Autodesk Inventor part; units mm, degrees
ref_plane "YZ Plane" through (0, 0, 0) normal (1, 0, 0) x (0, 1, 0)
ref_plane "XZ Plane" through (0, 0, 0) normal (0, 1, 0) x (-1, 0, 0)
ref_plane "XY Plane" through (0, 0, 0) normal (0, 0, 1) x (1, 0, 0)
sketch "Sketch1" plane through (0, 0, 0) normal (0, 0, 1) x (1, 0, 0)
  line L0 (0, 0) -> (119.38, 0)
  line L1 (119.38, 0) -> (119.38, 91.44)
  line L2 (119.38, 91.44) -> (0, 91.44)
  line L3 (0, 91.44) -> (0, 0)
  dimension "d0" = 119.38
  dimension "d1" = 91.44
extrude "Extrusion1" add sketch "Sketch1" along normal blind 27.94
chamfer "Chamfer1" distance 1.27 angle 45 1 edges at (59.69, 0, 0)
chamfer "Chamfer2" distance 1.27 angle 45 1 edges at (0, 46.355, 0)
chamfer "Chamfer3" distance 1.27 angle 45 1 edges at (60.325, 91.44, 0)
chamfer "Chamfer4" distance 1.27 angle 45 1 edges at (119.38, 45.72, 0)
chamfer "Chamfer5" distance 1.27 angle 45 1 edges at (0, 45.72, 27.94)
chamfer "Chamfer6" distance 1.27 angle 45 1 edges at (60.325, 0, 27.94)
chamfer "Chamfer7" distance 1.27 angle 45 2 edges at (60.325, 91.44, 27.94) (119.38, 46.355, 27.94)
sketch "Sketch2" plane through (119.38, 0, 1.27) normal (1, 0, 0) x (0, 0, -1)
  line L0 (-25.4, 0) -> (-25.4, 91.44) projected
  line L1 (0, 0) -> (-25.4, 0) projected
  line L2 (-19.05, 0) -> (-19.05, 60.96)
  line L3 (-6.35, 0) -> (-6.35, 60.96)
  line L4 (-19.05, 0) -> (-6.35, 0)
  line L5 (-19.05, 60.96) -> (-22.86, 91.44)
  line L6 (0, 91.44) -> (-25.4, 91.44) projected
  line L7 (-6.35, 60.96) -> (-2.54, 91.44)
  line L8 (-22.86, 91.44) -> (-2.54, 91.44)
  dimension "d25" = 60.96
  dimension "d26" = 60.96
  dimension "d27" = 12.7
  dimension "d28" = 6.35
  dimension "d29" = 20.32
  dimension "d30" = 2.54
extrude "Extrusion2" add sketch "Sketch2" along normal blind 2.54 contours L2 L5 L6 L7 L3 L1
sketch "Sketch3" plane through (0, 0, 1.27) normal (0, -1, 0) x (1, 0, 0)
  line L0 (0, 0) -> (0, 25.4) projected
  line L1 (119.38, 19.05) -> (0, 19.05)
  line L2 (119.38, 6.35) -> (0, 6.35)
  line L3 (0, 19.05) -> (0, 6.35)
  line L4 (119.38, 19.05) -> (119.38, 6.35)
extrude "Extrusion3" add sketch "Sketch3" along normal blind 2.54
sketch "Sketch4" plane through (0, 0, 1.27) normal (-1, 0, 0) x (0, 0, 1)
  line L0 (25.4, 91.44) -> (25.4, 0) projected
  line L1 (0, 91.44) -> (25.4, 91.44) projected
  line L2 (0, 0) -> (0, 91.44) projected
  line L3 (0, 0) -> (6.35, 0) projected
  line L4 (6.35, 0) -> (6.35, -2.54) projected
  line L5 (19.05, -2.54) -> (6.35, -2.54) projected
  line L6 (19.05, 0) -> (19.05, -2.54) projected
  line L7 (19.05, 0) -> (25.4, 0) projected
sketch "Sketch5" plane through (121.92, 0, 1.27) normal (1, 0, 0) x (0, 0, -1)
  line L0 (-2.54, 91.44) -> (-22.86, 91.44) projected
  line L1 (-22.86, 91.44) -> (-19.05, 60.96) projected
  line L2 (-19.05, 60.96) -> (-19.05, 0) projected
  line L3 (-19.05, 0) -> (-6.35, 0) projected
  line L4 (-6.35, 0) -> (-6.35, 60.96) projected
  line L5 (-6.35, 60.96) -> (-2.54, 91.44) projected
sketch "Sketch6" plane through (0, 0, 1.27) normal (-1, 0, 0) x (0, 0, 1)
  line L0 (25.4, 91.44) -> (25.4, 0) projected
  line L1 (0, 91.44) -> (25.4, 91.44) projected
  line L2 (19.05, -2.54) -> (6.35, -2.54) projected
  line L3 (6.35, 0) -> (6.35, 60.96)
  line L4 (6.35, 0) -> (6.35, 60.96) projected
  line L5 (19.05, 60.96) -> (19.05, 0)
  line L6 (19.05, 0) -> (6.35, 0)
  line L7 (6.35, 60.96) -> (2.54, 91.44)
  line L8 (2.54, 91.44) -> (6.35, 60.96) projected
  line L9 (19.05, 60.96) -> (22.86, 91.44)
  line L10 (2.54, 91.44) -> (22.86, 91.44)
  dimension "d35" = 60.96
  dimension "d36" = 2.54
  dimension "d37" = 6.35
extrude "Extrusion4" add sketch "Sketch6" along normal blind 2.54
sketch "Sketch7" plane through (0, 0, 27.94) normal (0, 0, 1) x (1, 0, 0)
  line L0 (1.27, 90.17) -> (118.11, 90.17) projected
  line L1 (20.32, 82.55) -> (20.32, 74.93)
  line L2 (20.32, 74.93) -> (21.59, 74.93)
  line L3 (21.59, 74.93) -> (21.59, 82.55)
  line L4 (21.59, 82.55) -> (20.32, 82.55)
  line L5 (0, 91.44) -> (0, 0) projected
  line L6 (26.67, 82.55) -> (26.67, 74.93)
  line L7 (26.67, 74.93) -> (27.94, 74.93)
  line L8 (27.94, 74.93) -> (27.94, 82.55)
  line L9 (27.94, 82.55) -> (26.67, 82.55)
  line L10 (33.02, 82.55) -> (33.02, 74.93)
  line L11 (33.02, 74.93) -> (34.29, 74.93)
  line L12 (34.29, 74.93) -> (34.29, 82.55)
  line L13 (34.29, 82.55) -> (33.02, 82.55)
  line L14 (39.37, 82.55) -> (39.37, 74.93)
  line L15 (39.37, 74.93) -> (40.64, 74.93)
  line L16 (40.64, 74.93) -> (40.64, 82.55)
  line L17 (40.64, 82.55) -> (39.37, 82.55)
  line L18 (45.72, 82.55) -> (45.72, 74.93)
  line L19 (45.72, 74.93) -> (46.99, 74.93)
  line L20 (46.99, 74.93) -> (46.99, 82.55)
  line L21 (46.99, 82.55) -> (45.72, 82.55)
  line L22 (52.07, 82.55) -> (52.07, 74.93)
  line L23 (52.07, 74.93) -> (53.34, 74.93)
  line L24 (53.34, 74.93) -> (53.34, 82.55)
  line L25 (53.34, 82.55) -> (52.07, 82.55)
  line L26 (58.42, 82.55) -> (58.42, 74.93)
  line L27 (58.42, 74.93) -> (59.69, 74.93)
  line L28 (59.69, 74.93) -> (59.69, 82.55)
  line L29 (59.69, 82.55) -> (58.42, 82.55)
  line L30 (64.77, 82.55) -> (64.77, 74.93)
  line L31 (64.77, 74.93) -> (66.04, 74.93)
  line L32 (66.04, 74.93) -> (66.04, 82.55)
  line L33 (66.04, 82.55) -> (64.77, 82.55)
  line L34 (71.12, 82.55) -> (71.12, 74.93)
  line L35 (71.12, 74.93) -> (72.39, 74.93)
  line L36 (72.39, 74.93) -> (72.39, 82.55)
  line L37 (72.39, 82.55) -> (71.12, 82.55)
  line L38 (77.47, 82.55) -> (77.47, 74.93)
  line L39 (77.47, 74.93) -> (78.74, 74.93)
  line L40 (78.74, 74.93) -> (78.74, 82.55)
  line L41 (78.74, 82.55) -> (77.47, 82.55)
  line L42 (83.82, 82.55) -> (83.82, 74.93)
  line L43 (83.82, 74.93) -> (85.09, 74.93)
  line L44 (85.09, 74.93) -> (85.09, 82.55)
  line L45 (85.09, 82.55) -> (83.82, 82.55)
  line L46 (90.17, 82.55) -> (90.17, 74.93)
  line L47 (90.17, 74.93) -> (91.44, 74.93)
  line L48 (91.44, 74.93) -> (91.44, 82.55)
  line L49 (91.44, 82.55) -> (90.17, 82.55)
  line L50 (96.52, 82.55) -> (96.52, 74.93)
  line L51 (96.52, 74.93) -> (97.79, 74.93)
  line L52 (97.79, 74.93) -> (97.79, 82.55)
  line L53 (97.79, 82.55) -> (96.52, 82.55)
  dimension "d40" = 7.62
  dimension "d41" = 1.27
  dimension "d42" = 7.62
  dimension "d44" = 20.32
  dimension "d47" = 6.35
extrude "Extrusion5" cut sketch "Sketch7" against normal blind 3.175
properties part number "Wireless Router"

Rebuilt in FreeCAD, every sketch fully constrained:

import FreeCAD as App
import Part
import Sketcher
from FreeCAD import Vector
Q = App.Units.Quantity


def edges_at(feature, points):
    """Names of the edges that pass closest to the given points."""
    edges = feature.Shape.Edges
    near = lambda p: min(range(len(edges)), key=lambda i: edges[i].distToShape(Part.Vertex(*p))[0])
    return sorted({f"Edge{near(p) + 1}" for p in points})


def add_polygon(sketch, points):
    """Adds a closed chain of lines whose ends are joined by coincident constraints."""
    first, n = sketch.GeometryCount, len(points)
    for a, b in zip(points, points[1:] + points[:1]):
        sketch.addGeometry(Part.LineSegment(App.Vector(*a, 0), App.Vector(*b, 0)), False)
    for i in range(n):
        sketch.addConstraint(Sketcher.Constraint("Coincident", first + i, 2, first + (i + 1) % n, 1))

doc = App.newDocument("Part")
body = doc.addObject("PartDesign::Body", "Body")

# Sketch on XY plane
sketch1 = body.newObject("Sketcher::SketchObject", "Sketch")
sketch1.AttachmentSupport = (doc.getObject("XY_Plane"), [""])
sketch1.MapMode = "FlatFace"
add_polygon(sketch1, [(0, 91.44), (0, 0), (119.38, 0), (119.38, 91.44)])  # lines 0-3
sketch1.addConstraint(Sketcher.Constraint("Vertical", 0))
sketch1.addConstraint(Sketcher.Constraint("Horizontal", 1))
sketch1.addConstraint(Sketcher.Constraint("Vertical", 2))
sketch1.addConstraint(Sketcher.Constraint("Horizontal", 3))
sketch1.addConstraint(Sketcher.Constraint("Coincident", 0, 2, -1, 1))
sketch1.addConstraint(Sketcher.Constraint("DistanceX", 1, 1, 1, 2, Q("4.7 in")))
sketch1.addConstraint(Sketcher.Constraint("DistanceY", 0, 2, 0, 1, Q("3.6 in")))
pad1 = body.newObject("PartDesign::Pad", "Pad")
pad1.Profile = sketch1
pad1.Length = Q("1.1 in")
doc.recompute()

chamfer = body.newObject("PartDesign::Chamfer", "Chamfer")
chamfer.Base = (pad1, edges_at(pad1, [(59.69, 0, 0)]))
chamfer.Size = Q("0.05 in")
doc.recompute()

chamfer2 = body.newObject("PartDesign::Chamfer", "Chamfer001")
chamfer2.Base = (chamfer, edges_at(chamfer, [(0, 46.355, 0)]))
chamfer2.Size = Q("0.05 in")
doc.recompute()

chamfer3 = body.newObject("PartDesign::Chamfer", "Chamfer002")
chamfer3.Base = (chamfer2, edges_at(chamfer2, [(60.325, 91.44, 0)]))
chamfer3.Size = Q("0.05 in")
doc.recompute()

chamfer4 = body.newObject("PartDesign::Chamfer", "Chamfer003")
chamfer4.Base = (chamfer3, edges_at(chamfer3, [(119.38, 45.72, 0)]))
chamfer4.Size = Q("0.05 in")
doc.recompute()

chamfer5 = body.newObject("PartDesign::Chamfer", "Chamfer004")
chamfer5.Base = (chamfer4, edges_at(chamfer4, [(0, 45.72, 27.94)]))
chamfer5.Size = Q("0.05 in")
doc.recompute()

chamfer6 = body.newObject("PartDesign::Chamfer", "Chamfer005")
chamfer6.Base = (chamfer5, edges_at(chamfer5, [(60.325, 0, 27.94)]))
chamfer6.Size = Q("0.05 in")
doc.recompute()

chamfer7 = body.newObject("PartDesign::Chamfer", "Chamfer006")
chamfer7.Base = (chamfer6, edges_at(chamfer6, [(60.325, 91.44, 27.94), (119.38, 46.355, 27.94)]))
chamfer7.Size = Q("0.05 in")

# Sketch on YZ plane
sketch2 = body.newObject("Sketcher::SketchObject", "Sketch001")
sketch2.AttachmentSupport = (doc.getObject("YZ_Plane"), [""])
sketch2.MapMode = "FlatFace"
sketch2.AttachmentOffset = App.Placement(Vector(0, 0, 4.7 * 25.4), App.Rotation())
add_polygon(sketch2, [(60.96, 20.32), (0, 20.32), (0, 7.62), (60.96, 7.62), (91.44, 3.81), (91.44, 24.13)])  # lines 0-5
sketch2.addConstraint(Sketcher.Constraint("Horizontal", 0))
sketch2.addConstraint(Sketcher.Constraint("Vertical", 1))
sketch2.addConstraint(Sketcher.Constraint("Horizontal", 2))
sketch2.addConstraint(Sketcher.Constraint("Vertical", 4))
sketch2.addConstraint(Sketcher.Constraint("PointOnObject", 0, 2, -2))
sketch2.addConstraint(Sketcher.Constraint("Vertical", 2, 2, 5, 2))
sketch2.addConstraint(Sketcher.Constraint("Equal", 3, 5))
sketch2.addConstraint(Sketcher.Constraint("DistanceX", 0, 2, 0, 1, Q("2.4 in")))
sketch2.addConstraint(Sketcher.Constraint("DistanceY", 1, 2, 1, 1, Q("0.5 in")))
sketch2.addConstraint(Sketcher.Constraint("DistanceY", 4, 1, 4, 2, Q("0.8 in")))
sketch2.addConstraint(Sketcher.Constraint("DistanceY", -1, 1, 0, 2, Q("0.8 in")))
sketch2.addConstraint(Sketcher.Constraint("DistanceX", -1, 1, 3, 2, Q("3.6 in")))
pad2 = body.newObject("PartDesign::Pad", "Pad001")
pad2.Profile = sketch2
pad2.Length = Q("0.1 in")

# Sketch on XZ plane
sketch3 = body.newObject("Sketcher::SketchObject", "Sketch002")
sketch3.AttachmentSupport = (doc.getObject("XZ_Plane"), [""])
sketch3.MapMode = "FlatFace"
add_polygon(sketch3, [(0, 20.32), (0, 7.62), (119.38, 7.62), (119.38, 20.32)])  # lines 0-3
sketch3.addConstraint(Sketcher.Constraint("Vertical", 0))
sketch3.addConstraint(Sketcher.Constraint("Horizontal", 1))
sketch3.addConstraint(Sketcher.Constraint("Vertical", 2))
sketch3.addConstraint(Sketcher.Constraint("Horizontal", 3))
sketch3.addConstraint(Sketcher.Constraint("PointOnObject", 0, 2, -2))
sketch3.addConstraint(Sketcher.Constraint("DistanceX", 1, 1, 1, 2, Q("4.7 in")))
sketch3.addConstraint(Sketcher.Constraint("DistanceY", 0, 2, 0, 1, Q("0.5 in")))
sketch3.addConstraint(Sketcher.Constraint("DistanceY", -1, 1, 0, 2, Q("0.3 in")))
pad3 = body.newObject("PartDesign::Pad", "Pad002")
pad3.Profile = sketch3
pad3.Length = Q("0.1 in")

# Sketch on YZ plane
sketch4 = body.newObject("Sketcher::SketchObject", "Sketch003")
sketch4.AttachmentSupport = (doc.getObject("YZ_Plane"), [""])
sketch4.MapMode = "FlatFace"
add_polygon(sketch4, [(91.44, 24.13), (91.44, 3.81), (60.96, 7.62), (0, 7.62), (0, 20.32), (60.96, 20.32)])  # lines 0-5
sketch4.addConstraint(Sketcher.Constraint("Vertical", 0))
sketch4.addConstraint(Sketcher.Constraint("Horizontal", 2))
sketch4.addConstraint(Sketcher.Constraint("Vertical", 3))
sketch4.addConstraint(Sketcher.Constraint("Horizontal", 4))
sketch4.addConstraint(Sketcher.Constraint("PointOnObject", 2, 2, -2))
sketch4.addConstraint(Sketcher.Constraint("Vertical", 1, 2, 4, 2))
sketch4.addConstraint(Sketcher.Constraint("Equal", 1, 5))
sketch4.addConstraint(Sketcher.Constraint("DistanceX", 2, 2, 2, 1, Q("2.4 in")))
sketch4.addConstraint(Sketcher.Constraint("DistanceY", 0, 2, 0, 1, Q("0.8 in")))
sketch4.addConstraint(Sketcher.Constraint("DistanceY", 3, 1, 3, 2, Q("0.5 in")))
sketch4.addConstraint(Sketcher.Constraint("DistanceX", -1, 1, 0, 2, Q("3.6 in")))
sketch4.addConstraint(Sketcher.Constraint("DistanceY", -1, 1, 1, 2, Q("0.3 in")))
pad4 = body.newObject("PartDesign::Pad", "Pad003")
pad4.Profile = sketch4
pad4.Length = Q("0.1 in")
pad4.Reversed = True

# Sketch on XY plane
sketch5 = body.newObject("Sketcher::SketchObject", "Sketch004")
sketch5.AttachmentSupport = (doc.getObject("XY_Plane"), [""])
sketch5.MapMode = "FlatFace"
sketch5.AttachmentOffset = App.Placement(Vector(0, 0, 1.1 * 25.4), App.Rotation())
add_polygon(sketch5, [(21.59, 82.55), (20.32, 82.55), (20.32, 74.93), (21.59, 74.93)])  # lines 0-3
add_polygon(sketch5, [(27.94, 82.55), (26.67, 82.55), (26.67, 74.93), (27.94, 74.93)])  # lines 4-7
add_polygon(sketch5, [(34.29, 82.55), (33.02, 82.55), (33.02, 74.93), (34.29, 74.93)])  # lines 8-11
add_polygon(sketch5, [(40.64, 82.55), (39.37, 82.55), (39.37, 74.93), (40.64, 74.93)])  # lines 12-15
add_polygon(sketch5, [(46.99, 82.55), (45.72, 82.55), (45.72, 74.93), (46.99, 74.93)])  # lines 16-19
add_polygon(sketch5, [(53.34, 82.55), (52.07, 82.55), (52.07, 74.93), (53.34, 74.93)])  # lines 20-23
add_polygon(sketch5, [(59.69, 82.55), (58.42, 82.55), (58.42, 74.93), (59.69, 74.93)])  # lines 24-27
add_polygon(sketch5, [(66.04, 82.55), (64.77, 82.55), (64.77, 74.93), (66.04, 74.93)])  # lines 28-31
add_polygon(sketch5, [(72.39, 82.55), (71.12, 82.55), (71.12, 74.93), (72.39, 74.93)])  # lines 32-35
add_polygon(sketch5, [(78.74, 82.55), (77.47, 82.55), (77.47, 74.93), (78.74, 74.93)])  # lines 36-39
add_polygon(sketch5, [(85.09, 82.55), (83.82, 82.55), (83.82, 74.93), (85.09, 74.93)])  # lines 40-43
add_polygon(sketch5, [(91.44, 82.55), (90.17, 82.55), (90.17, 74.93), (91.44, 74.93)])  # lines 44-47
add_polygon(sketch5, [(97.79, 82.55), (96.52, 82.55), (96.52, 74.93), (97.79, 74.93)])  # lines 48-51
sketch5.addConstraint(Sketcher.Constraint("Horizontal", 0))
sketch5.addConstraint(Sketcher.Constraint("Vertical", 1))
sketch5.addConstraint(Sketcher.Constraint("Horizontal", 2))
sketch5.addConstraint(Sketcher.Constraint("Vertical", 3))
sketch5.addConstraint(Sketcher.Constraint("Horizontal", 4))
sketch5.addConstraint(Sketcher.Constraint("Vertical", 5))
sketch5.addConstraint(Sketcher.Constraint("Horizontal", 6))
sketch5.addConstraint(Sketcher.Constraint("Vertical", 7))
sketch5.addConstraint(Sketcher.Constraint("Horizontal", 8))
sketch5.addConstraint(Sketcher.Constraint("Vertical", 9))
sketch5.addConstraint(Sketcher.Constraint("Horizontal", 10))
sketch5.addConstraint(Sketcher.Constraint("Vertical", 11))
sketch5.addConstraint(Sketcher.Constraint("Horizontal", 12))
sketch5.addConstraint(Sketcher.Constraint("Vertical", 13))
sketch5.addConstraint(Sketcher.Constraint("Horizontal", 14))
sketch5.addConstraint(Sketcher.Constraint("Vertical", 15))
sketch5.addConstraint(Sketcher.Constraint("Horizontal", 16))
sketch5.addConstraint(Sketcher.Constraint("Vertical", 17))
sketch5.addConstraint(Sketcher.Constraint("Horizontal", 18))
sketch5.addConstraint(Sketcher.Constraint("Vertical", 19))
sketch5.addConstraint(Sketcher.Constraint("Horizontal", 20))
sketch5.addConstraint(Sketcher.Constraint("Vertical", 21))
sketch5.addConstraint(Sketcher.Constraint("Horizontal", 22))
sketch5.addConstraint(Sketcher.Constraint("Vertical", 23))
sketch5.addConstraint(Sketcher.Constraint("Horizontal", 24))
sketch5.addConstraint(Sketcher.Constraint("Vertical", 25))
sketch5.addConstraint(Sketcher.Constraint("Horizontal", 26))
sketch5.addConstraint(Sketcher.Constraint("Vertical", 27))
sketch5.addConstraint(Sketcher.Constraint("Horizontal", 28))
sketch5.addConstraint(Sketcher.Constraint("Vertical", 29))
sketch5.addConstraint(Sketcher.Constraint("Horizontal", 30))
sketch5.addConstraint(Sketcher.Constraint("Vertical", 31))
sketch5.addConstraint(Sketcher.Constraint("Horizontal", 32))
sketch5.addConstraint(Sketcher.Constraint("Vertical", 33))
sketch5.addConstraint(Sketcher.Constraint("Horizontal", 34))
sketch5.addConstraint(Sketcher.Constraint("Vertical", 35))
sketch5.addConstraint(Sketcher.Constraint("Horizontal", 36))
sketch5.addConstraint(Sketcher.Constraint("Vertical", 37))
sketch5.addConstraint(Sketcher.Constraint("Horizontal", 38))
sketch5.addConstraint(Sketcher.Constraint("Vertical", 39))
sketch5.addConstraint(Sketcher.Constraint("Horizontal", 40))
sketch5.addConstraint(Sketcher.Constraint("Vertical", 41))
sketch5.addConstraint(Sketcher.Constraint("Horizontal", 42))
sketch5.addConstraint(Sketcher.Constraint("Vertical", 43))
sketch5.addConstraint(Sketcher.Constraint("Horizontal", 44))
sketch5.addConstraint(Sketcher.Constraint("Vertical", 45))
sketch5.addConstraint(Sketcher.Constraint("Horizontal", 46))
sketch5.addConstraint(Sketcher.Constraint("Vertical", 47))
sketch5.addConstraint(Sketcher.Constraint("Horizontal", 48))
sketch5.addConstraint(Sketcher.Constraint("Vertical", 49))
sketch5.addConstraint(Sketcher.Constraint("Horizontal", 50))
sketch5.addConstraint(Sketcher.Constraint("Vertical", 51))
sketch5.addConstraint(Sketcher.Constraint("Horizontal", 3, 2, 4, 2))
sketch5.addConstraint(Sketcher.Constraint("Horizontal", 2, 2, 5, 2))
sketch5.addConstraint(Sketcher.Constraint("Horizontal", 7, 2, 8, 2))
sketch5.addConstraint(Sketcher.Constraint("Horizontal", 6, 2, 9, 2))
sketch5.addConstraint(Sketcher.Constraint("Horizontal", 11, 2, 12, 2))
sketch5.addConstraint(Sketcher.Constraint("Horizontal", 10, 2, 13, 2))
sketch5.addConstraint(Sketcher.Constraint("Horizontal", 15, 2, 16, 2))
sketch5.addConstraint(Sketcher.Constraint("Horizontal", 14, 2, 17, 2))
sketch5.addConstraint(Sketcher.Constraint("Horizontal", 19, 2, 20, 2))
sketch5.addConstraint(Sketcher.Constraint("Horizontal", 18, 2, 21, 2))
sketch5.addConstraint(Sketcher.Constraint("Horizontal", 23, 2, 24, 2))
sketch5.addConstraint(Sketcher.Constraint("Horizontal", 22, 2, 25, 2))
sketch5.addConstraint(Sketcher.Constraint("Horizontal", 27, 2, 28, 2))
sketch5.addConstraint(Sketcher.Constraint("Horizontal", 26, 2, 29, 2))
sketch5.addConstraint(Sketcher.Constraint("Horizontal", 31, 2, 32, 2))
sketch5.addConstraint(Sketcher.Constraint("Horizontal", 30, 2, 33, 2))
sketch5.addConstraint(Sketcher.Constraint("Horizontal", 35, 2, 36, 2))
sketch5.addConstraint(Sketcher.Constraint("Horizontal", 34, 2, 37, 2))
sketch5.addConstraint(Sketcher.Constraint("Horizontal", 39, 2, 40, 2))
sketch5.addConstraint(Sketcher.Constraint("Horizontal", 38, 2, 41, 2))
sketch5.addConstraint(Sketcher.Constraint("Horizontal", 43, 2, 44, 2))
sketch5.addConstraint(Sketcher.Constraint("Horizontal", 42, 2, 45, 2))
sketch5.addConstraint(Sketcher.Constraint("Horizontal", 47, 2, 48, 2))
sketch5.addConstraint(Sketcher.Constraint("Horizontal", 46, 2, 49, 2))
sketch5.addConstraint(Sketcher.Constraint("Equal", 2, 4))
sketch5.addConstraint(Sketcher.Constraint("Equal", 6, 8))
sketch5.addConstraint(Sketcher.Constraint("Equal", 10, 12))
sketch5.addConstraint(Sketcher.Constraint("Equal", 14, 16))
sketch5.addConstraint(Sketcher.Constraint("Equal", 18, 20))
sketch5.addConstraint(Sketcher.Constraint("Equal", 22, 24))
sketch5.addConstraint(Sketcher.Constraint("Equal", 26, 28))
sketch5.addConstraint(Sketcher.Constraint("Equal", 30, 32))
sketch5.addConstraint(Sketcher.Constraint("Equal", 34, 36))
sketch5.addConstraint(Sketcher.Constraint("Equal", 38, 40))
sketch5.addConstraint(Sketcher.Constraint("Equal", 42, 44))
sketch5.addConstraint(Sketcher.Constraint("Equal", 46, 48))
sketch5.addConstraint(Sketcher.Constraint("DistanceY", 1, 2, 1, 1, Q("0.3 in")))
sketch5.addConstraint(Sketcher.Constraint("DistanceX", 0, 2, 0, 1, Q("0.05 in")))
sketch5.addConstraint(Sketcher.Constraint("DistanceX", -1, 1, 0, 2, Q("0.8 in")))
sketch5.addConstraint(Sketcher.Constraint("DistanceX", 1, 2, 6, 2, Q("0.3 in")))
sketch5.addConstraint(Sketcher.Constraint("DistanceX", 5, 2, 10, 2, Q("0.3 in")))
sketch5.addConstraint(Sketcher.Constraint("DistanceX", 9, 2, 14, 2, Q("0.3 in")))
sketch5.addConstraint(Sketcher.Constraint("DistanceX", 13, 2, 18, 2, Q("0.3 in")))
sketch5.addConstraint(Sketcher.Constraint("DistanceX", 17, 2, 22, 2, Q("0.3 in")))
sketch5.addConstraint(Sketcher.Constraint("DistanceX", 21, 2, 26, 2, Q("0.3 in")))
sketch5.addConstraint(Sketcher.Constraint("DistanceX", 25, 2, 30, 2, Q("0.3 in")))
sketch5.addConstraint(Sketcher.Constraint("DistanceX", 29, 2, 34, 2, Q("0.3 in")))
sketch5.addConstraint(Sketcher.Constraint("DistanceX", 33, 2, 38, 2, Q("0.3 in")))
sketch5.addConstraint(Sketcher.Constraint("DistanceX", 37, 2, 42, 2, Q("0.3 in")))
sketch5.addConstraint(Sketcher.Constraint("DistanceX", 41, 2, 46, 2, Q("0.3 in")))
sketch5.addConstraint(Sketcher.Constraint("DistanceX", 45, 2, 50, 2, Q("0.3 in")))
sketch5.addConstraint(Sketcher.Constraint("DistanceY", -1, 1, 0, 2, Q("3.25 in")))
pocket1 = body.newObject("PartDesign::Pocket", "Pocket")
pocket1.Profile = sketch5
pocket1.Length = Q("0.125 in")

doc.recompute()
